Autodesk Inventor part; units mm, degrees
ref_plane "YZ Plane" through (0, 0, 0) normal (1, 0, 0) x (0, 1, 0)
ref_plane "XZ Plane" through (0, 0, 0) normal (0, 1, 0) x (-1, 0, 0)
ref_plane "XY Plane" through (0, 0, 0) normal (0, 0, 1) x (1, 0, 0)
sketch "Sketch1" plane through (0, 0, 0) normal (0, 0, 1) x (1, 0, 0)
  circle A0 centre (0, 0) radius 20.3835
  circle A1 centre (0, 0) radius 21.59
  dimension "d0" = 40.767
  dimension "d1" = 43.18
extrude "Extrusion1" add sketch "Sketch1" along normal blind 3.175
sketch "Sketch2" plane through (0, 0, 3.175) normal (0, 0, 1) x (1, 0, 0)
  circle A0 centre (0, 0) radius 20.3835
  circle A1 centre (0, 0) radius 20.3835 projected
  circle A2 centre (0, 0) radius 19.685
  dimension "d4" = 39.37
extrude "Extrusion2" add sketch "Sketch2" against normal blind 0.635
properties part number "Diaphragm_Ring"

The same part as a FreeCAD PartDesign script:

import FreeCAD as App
import Part
import Sketcher
Q = App.Units.Quantity

doc = App.newDocument("Part")
params = doc.addObject("Spreadsheet::Sheet", "Params")
for row, (alias, value) in enumerate([
    ("sketch1_diameter", "1.7 in"),
    ("sketch1_diameter2", "1.605 in"),
    ("pad1_length", "0.125 in"),
    ("sketch2_diameter", "1.55 in"),
    ("sketch2_diameter2", "1.605 in"),
    ("pad2_length", "0.025 in"),
], start=1):
    params.set(f"A{row}", alias)
    params.set(f"B{row}", "=" + value)
    params.setAlias(f"B{row}", alias)

body = doc.addObject("PartDesign::Body", "Body")

# Sketch on XY plane
sketch1 = body.newObject("Sketcher::SketchObject", "Sketch")
sketch1.AttachmentSupport = (doc.getObject("XY_Plane"), [""])
sketch1.MapMode = "FlatFace"
sketch1.addGeometry(Part.Circle(App.Vector(0, 0, 0), App.Vector(0, 0, 1), 22), False)
sketch1.addGeometry(Part.Circle(App.Vector(0, 0, 0), App.Vector(0, 0, 1), 20), False)
sketch1.addConstraint(Sketcher.Constraint("Coincident", 0, 3, -1, 1))
sketch1.addConstraint(Sketcher.Constraint("Coincident", 1, 3, -1, 1))
sketch1.addConstraint(Sketcher.Constraint("Diameter", 0, Q("1.7 in")))
sketch1.addConstraint(Sketcher.Constraint("Diameter", 1, Q("1.605 in")))
sketch1.setExpression("Constraints[2]", "Params.sketch1_diameter")
sketch1.setExpression("Constraints[3]", "Params.sketch1_diameter2")
pad1 = body.newObject("PartDesign::Pad", "Pad")
pad1.Profile = sketch1
pad1.setExpression("Length", "Params.pad1_length")

# Sketch on XY plane
sketch2 = body.newObject("Sketcher::SketchObject", "Sketch001")
sketch2.AttachmentSupport = (doc.getObject("XY_Plane"), [""])
sketch2.MapMode = "FlatFace"
sketch2.AttachmentOffset = App.Placement(App.Vector(0, 0, 0.125 * 25.4), App.Rotation())
sketch2.addGeometry(Part.Circle(App.Vector(0, 0, 0), App.Vector(0, 0, 1), 20), False)
sketch2.addGeometry(Part.Circle(App.Vector(0, 0, 0), App.Vector(0, 0, 1), 20), False)
sketch2.addConstraint(Sketcher.Constraint("Coincident", 0, 3, -1, 1))
sketch2.addConstraint(Sketcher.Constraint("Coincident", 1, 3, -1, 1))
sketch2.addConstraint(Sketcher.Constraint("Diameter", 1, Q("1.55 in")))
sketch2.addConstraint(Sketcher.Constraint("Diameter", 0, Q("1.605 in")))
sketch2.setExpression("Constraints[2]", "Params.sketch2_diameter")
sketch2.setExpression("Constraints[3]", "Params.sketch2_diameter2")
pad2 = body.newObject("PartDesign::Pad", "Pad001")
pad2.Profile = sketch2
pad2.setExpression("Length", "Params.pad2_length")
pad2.Reversed = True

doc.recompute()
